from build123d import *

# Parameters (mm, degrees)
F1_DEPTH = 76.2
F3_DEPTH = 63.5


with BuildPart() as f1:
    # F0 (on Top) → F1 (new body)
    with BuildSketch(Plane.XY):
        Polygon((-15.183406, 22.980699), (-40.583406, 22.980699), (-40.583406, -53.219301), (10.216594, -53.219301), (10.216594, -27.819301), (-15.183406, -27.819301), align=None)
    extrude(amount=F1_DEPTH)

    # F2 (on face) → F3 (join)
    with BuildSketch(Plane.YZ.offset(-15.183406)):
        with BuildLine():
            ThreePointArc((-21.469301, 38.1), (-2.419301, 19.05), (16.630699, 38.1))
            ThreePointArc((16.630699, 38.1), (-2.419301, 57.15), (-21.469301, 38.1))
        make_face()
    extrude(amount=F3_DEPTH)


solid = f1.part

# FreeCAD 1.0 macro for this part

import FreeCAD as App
import Part
import Sketcher
Q = App.Units.Quantity

doc = App.newDocument("Part")
body = doc.addObject("PartDesign::Body", "Body")

# Sketch on XY plane
sketch1 = body.newObject("Sketcher::SketchObject", "Sketch")
sketch1.AttachmentSupport = (doc.getObject("XY_Plane"), [""])
sketch1.MapMode = "FlatFace"
sketch1.addGeometry(Part.LineSegment(App.Vector(-15, 23, 0), App.Vector(-41, 23, 0)), False)
sketch1.addGeometry(Part.LineSegment(App.Vector(-41, 23, 0), App.Vector(-41, -53, 0)), False)
sketch1.addGeometry(Part.LineSegment(App.Vector(-41, -53, 0), App.Vector(10, -53, 0)), False)
sketch1.addGeometry(Part.LineSegment(App.Vector(10, -53, 0), App.Vector(10, -28, 0)), False)
sketch1.addGeometry(Part.LineSegment(App.Vector(10, -28, 0), App.Vector(-15, -28, 0)), False)
sketch1.addGeometry(Part.LineSegment(App.Vector(-15, -28, 0), App.Vector(-15, 23, 0)), False)
sketch1.addConstraint(Sketcher.Constraint("Coincident", 0, 2, 1, 1))
sketch1.addConstraint(Sketcher.Constraint("Coincident", 1, 2, 2, 1))
sketch1.addConstraint(Sketcher.Constraint("Coincident", 2, 2, 3, 1))
sketch1.addConstraint(Sketcher.Constraint("Coincident", 3, 2, 4, 1))
sketch1.addConstraint(Sketcher.Constraint("Coincident", 4, 2, 5, 1))
sketch1.addConstraint(Sketcher.Constraint("Coincident", 5, 2, 0, 1))
sketch1.addConstraint(Sketcher.Constraint("Horizontal", 0))
sketch1.addConstraint(Sketcher.Constraint("Vertical", 1))
sketch1.addConstraint(Sketcher.Constraint("Horizontal", 2))
sketch1.addConstraint(Sketcher.Constraint("Vertical", 3))
sketch1.addConstraint(Sketcher.Constraint("Horizontal", 4))
sketch1.addConstraint(Sketcher.Constraint("Vertical", 5))
sketch1.addConstraint(Sketcher.Constraint("Equal", 0, 4))
sketch1.addConstraint(Sketcher.Constraint("Equal", 4, 3))
sketch1.addConstraint(Sketcher.Constraint("Equal", 2, 5))
sketch1.addConstraint(Sketcher.Constraint("DistanceX", 0, 2, 0, 1, Q("1 in")))
sketch1.addConstraint(Sketcher.Constraint("DistanceY", -1, 1, 0, 2, 22.980699))
sketch1.addConstraint(Sketcher.Constraint("DistanceX", 0, 2, -1, 1, 40.583406))
pad1 = body.newObject("PartDesign::Pad", "Pad")
pad1.Profile = sketch1
pad1.Length = Q("3 in")

# Sketch on YZ plane
sketch2 = body.newObject("Sketcher::SketchObject", "Sketch001")
sketch2.AttachmentSupport = (doc.getObject("YZ_Plane"), [""])
sketch2.MapMode = "FlatFace"
sketch2.AttachmentOffset = App.Placement(App.Vector(0, 0, -15.183406), App.Rotation())
sketch2.addGeometry(Part.Circle(App.Vector(-2, 38, 0), App.Vector(0, 0, 1), 19), False)
sketch2.addConstraint(Sketcher.Constraint("Diameter", 0, Q("1.5 in")))
sketch2.addConstraint(Sketcher.Constraint("DistanceY", -1, 1, 0, 3, Q("1.5 in")))
sketch2.addConstraint(Sketcher.Constraint("DistanceX", 0, 3, -1, 1, 2.419301))
pad2 = body.newObject("PartDesign::Pad", "Pad001")
pad2.Profile = sketch2
pad2.Length = Q("2.5 in")

doc.recompute()
